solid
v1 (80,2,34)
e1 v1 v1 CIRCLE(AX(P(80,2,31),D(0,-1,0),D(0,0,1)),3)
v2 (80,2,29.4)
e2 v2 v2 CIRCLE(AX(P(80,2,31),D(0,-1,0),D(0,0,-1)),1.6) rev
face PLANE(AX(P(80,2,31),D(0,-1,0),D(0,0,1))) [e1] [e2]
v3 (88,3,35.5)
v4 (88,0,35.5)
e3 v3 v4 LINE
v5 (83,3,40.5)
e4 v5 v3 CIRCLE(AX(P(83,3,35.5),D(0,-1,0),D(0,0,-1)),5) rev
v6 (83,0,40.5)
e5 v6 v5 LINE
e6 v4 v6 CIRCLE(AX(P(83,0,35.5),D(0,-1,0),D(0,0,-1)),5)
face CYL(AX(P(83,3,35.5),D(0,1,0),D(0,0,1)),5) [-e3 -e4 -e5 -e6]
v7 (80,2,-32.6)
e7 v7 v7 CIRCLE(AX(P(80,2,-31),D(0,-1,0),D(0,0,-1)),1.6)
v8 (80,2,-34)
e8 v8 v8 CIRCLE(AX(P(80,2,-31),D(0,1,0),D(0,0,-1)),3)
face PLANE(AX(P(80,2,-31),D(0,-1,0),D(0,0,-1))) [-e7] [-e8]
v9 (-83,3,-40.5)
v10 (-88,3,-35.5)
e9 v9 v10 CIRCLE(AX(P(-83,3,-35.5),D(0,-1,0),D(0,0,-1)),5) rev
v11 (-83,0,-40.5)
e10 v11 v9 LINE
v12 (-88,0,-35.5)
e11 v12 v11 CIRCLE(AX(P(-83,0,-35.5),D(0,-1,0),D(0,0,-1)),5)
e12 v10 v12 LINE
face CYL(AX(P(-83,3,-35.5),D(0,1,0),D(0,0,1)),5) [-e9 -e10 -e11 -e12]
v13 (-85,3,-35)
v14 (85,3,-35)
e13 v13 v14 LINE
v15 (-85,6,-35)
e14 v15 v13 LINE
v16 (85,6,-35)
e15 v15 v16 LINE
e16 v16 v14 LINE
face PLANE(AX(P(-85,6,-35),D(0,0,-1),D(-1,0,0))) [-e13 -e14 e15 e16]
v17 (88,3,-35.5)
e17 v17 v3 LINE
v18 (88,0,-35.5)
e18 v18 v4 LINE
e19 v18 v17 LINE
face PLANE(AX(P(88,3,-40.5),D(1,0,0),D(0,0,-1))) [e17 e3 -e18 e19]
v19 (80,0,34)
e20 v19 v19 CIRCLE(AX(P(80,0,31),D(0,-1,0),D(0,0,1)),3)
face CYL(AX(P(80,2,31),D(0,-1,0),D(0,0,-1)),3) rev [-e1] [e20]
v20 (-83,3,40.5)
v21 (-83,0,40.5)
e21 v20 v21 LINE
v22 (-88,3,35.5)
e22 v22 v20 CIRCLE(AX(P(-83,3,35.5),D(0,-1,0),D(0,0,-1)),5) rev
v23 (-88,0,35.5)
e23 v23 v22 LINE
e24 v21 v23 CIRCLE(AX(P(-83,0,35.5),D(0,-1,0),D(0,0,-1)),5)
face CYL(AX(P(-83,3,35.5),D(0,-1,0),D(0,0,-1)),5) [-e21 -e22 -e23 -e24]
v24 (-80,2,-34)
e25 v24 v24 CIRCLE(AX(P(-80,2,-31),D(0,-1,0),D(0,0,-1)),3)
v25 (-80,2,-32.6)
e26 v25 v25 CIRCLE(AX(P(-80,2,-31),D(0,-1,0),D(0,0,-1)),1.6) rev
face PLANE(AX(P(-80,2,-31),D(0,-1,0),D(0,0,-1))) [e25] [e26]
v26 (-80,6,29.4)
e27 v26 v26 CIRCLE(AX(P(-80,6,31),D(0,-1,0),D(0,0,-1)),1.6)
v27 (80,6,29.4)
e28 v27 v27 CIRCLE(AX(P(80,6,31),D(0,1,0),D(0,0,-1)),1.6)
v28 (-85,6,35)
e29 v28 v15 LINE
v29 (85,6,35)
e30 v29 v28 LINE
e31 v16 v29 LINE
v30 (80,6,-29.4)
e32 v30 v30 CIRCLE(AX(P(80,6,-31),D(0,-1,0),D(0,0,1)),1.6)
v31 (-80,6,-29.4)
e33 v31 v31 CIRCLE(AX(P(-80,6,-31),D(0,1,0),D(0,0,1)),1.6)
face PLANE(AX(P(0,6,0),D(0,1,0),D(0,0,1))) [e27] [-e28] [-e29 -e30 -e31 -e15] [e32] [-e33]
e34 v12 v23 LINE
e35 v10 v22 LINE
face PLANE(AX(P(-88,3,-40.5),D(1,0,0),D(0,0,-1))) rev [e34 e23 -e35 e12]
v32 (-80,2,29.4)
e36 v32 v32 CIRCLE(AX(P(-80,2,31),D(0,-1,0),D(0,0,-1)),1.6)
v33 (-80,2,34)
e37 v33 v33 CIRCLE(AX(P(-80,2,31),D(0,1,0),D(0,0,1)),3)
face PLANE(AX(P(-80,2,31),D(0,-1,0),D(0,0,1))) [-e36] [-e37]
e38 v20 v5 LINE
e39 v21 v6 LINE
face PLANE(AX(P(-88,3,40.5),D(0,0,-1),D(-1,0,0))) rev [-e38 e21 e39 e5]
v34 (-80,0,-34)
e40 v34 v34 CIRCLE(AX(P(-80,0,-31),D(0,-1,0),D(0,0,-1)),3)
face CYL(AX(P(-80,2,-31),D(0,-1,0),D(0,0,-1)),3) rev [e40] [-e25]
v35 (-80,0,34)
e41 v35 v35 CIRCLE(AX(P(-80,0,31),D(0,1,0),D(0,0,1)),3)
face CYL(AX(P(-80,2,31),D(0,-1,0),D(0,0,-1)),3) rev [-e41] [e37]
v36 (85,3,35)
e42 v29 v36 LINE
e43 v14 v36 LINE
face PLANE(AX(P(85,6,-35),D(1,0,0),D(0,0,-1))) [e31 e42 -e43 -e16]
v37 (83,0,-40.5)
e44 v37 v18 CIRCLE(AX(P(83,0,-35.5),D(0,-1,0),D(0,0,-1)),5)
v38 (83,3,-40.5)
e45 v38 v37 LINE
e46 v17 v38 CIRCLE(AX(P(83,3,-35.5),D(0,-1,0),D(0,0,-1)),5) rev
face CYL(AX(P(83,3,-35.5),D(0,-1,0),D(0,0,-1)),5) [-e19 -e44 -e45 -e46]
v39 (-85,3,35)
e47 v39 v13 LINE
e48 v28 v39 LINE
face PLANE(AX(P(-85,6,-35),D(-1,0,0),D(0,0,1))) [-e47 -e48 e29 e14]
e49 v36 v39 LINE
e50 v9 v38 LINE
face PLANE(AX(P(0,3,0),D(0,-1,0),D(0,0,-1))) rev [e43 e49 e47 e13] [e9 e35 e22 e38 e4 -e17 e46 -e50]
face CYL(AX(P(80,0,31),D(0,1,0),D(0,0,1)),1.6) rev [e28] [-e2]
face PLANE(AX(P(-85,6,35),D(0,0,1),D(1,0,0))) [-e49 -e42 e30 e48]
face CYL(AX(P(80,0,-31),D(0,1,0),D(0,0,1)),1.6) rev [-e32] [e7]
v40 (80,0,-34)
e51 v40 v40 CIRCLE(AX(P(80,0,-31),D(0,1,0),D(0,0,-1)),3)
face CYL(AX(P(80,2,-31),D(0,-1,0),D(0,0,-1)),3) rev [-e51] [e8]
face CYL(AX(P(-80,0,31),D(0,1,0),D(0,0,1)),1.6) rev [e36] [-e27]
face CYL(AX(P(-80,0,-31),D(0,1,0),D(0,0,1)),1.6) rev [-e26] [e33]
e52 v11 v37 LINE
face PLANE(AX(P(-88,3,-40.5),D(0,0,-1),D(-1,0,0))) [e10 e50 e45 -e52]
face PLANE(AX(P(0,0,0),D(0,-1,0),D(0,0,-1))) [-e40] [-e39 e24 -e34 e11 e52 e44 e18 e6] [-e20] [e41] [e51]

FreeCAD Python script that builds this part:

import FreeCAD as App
import Part
import Sketcher

V = App.Vector


def edges_at(feature, points):
    """Names of the edges that pass closest to the given points."""
    edges = feature.Shape.Edges
    near = lambda p: min(range(len(edges)), key=lambda i: edges[i].distToShape(Part.Vertex(*p))[0])
    return sorted({f"Edge{near(p) + 1}" for p in points})


def add_polygon(sketch, points):
    """Adds a closed chain of lines whose ends are joined by coincident constraints."""
    first, n = sketch.GeometryCount, len(points)
    for a, b in zip(points, points[1:] + points[:1]):
        sketch.addGeometry(Part.LineSegment(App.Vector(*a, 0), App.Vector(*b, 0)), False)
    for i in range(n):
        sketch.addConstraint(Sketcher.Constraint("Coincident", first + i, 2, first + (i + 1) % n, 1))

doc = App.newDocument("Part")
params = doc.addObject("Spreadsheet::Sheet", "Params")
for row, (alias, value) in enumerate([
    ("sketch1_width", "176 mm"),
    ("sketch1_height", "81 mm"),
    ("pad1_length", "3 mm"),
    ("fillet_radius", "5 mm"),
    ("sketch2_width", "170 mm"),
    ("sketch2_height", "70 mm"),
    ("pad2_length", "6 mm"),
    ("sketch3_diameter", "3.2 mm"),
    ("sketch4_diameter", "6 mm"),
    ("pocket2_length", "2 mm"),
    ("sketch5_diameter", "3.2 mm"),
    ("sketch6_diameter", "6 mm"),
    ("pocket4_length", "2 mm"),
], start=1):
    params.set(f"A{row}", alias)
    params.set(f"B{row}", "=" + value)
    params.setAlias(f"B{row}", alias)

body = doc.addObject("PartDesign::Body", "Body")

sketch1 = body.newObject("Sketcher::SketchObject", "Sketch")
sketch1.AttachmentSupport = (doc.getObject("XZ_Plane"), [""])
sketch1.MapMode = "FlatFace"
add_polygon(sketch1, [(-88, -40), (-88, 40), (88, 40), (88, -40)])
sketch1.addConstraint([
    Sketcher.Constraint("Vertical", 0),
    Sketcher.Constraint("Horizontal", 1),
    Sketcher.Constraint("Vertical", 2),
    Sketcher.Constraint("Horizontal", 3),
    Sketcher.Constraint("Symmetric", 0, 2, 2, 2, -1, 1),
    Sketcher.Constraint("DistanceX", 1, 1, 1, 2, 176.0),
    Sketcher.Constraint("DistanceY", 0, 1, 0, 2, 81.0),
])
sketch1.setExpression("Constraints[9]", "Params.sketch1_width")
sketch1.setExpression("Constraints[10]", "Params.sketch1_height")
pad1 = body.newObject("PartDesign::Pad", "Pad")
pad1.Profile = sketch1
pad1.setExpression("Length", "Params.pad1_length")
pad1.Reversed = True
doc.recompute()

fillet = body.newObject("PartDesign::Fillet", "Fillet")
fillet.Base = (pad1, edges_at(pad1, [
    (-88, 1.5, -40.5),
    (-88, 1.5, 40.5),
    (88, 1.5, 40.5),
    (88, 1.5, -40.5),
]))
fillet.setExpression("Radius", "Params.fillet_radius")

sketch2 = body.newObject("Sketcher::SketchObject", "Sketch001")
sketch2.AttachmentSupport = (doc.getObject("XZ_Plane"), [""])
sketch2.MapMode = "FlatFace"
add_polygon(sketch2, [(-85, 35), (-85, -35), (85, -35), (85, 35)])
sketch2.addConstraint([
    Sketcher.Constraint("Vertical", 0),
    Sketcher.Constraint("Horizontal", 1),
    Sketcher.Constraint("Vertical", 2),
    Sketcher.Constraint("Horizontal", 3),
    Sketcher.Constraint("Symmetric", 0, 2, 2, 2, -1, 1),
    Sketcher.Constraint("DistanceX", 1, 1, 1, 2, 170.0),
    Sketcher.Constraint("DistanceY", 0, 2, 0, 1, 70.0),
])
sketch2.setExpression("Constraints[9]", "Params.sketch2_width")
sketch2.setExpression("Constraints[10]", "Params.sketch2_height")
pad2 = body.newObject("PartDesign::Pad", "Pad001")
pad2.Profile = sketch2
pad2.setExpression("Length", "Params.pad2_length")
pad2.Reversed = True

sketch3 = body.newObject("Sketcher::SketchObject", "Sketch002")
sketch3.AttachmentSupport = (doc.getObject("XZ_Plane"), [""])
sketch3.MapMode = "FlatFace"
sketch3.AttachmentOffset = App.Placement(V(0, 0, -6), App.Rotation())
sketch3.addGeometry(Part.Circle(V(-80, -31, 0), V(0, 0, 1), 1.6), False)
sketch3.addConstraint([
    Sketcher.Constraint("Diameter", 0, 3.2),
    Sketcher.Constraint("DistanceX", 0, 3, -1, 1, 80.0),
    Sketcher.Constraint("DistanceY", 0, 3, -1, 1, 31.0),
])
sketch3.setExpression("Constraints[0]", "Params.sketch3_diameter")
pocket1 = body.newObject("PartDesign::Pocket", "Pocket")
pocket1.Profile = sketch3
pocket1.Type = "ThroughAll"
pocket1.Reversed = True

sketch4 = body.newObject("Sketcher::SketchObject", "Sketch003")
sketch4.AttachmentSupport = (doc.getObject("XZ_Plane"), [""])
sketch4.MapMode = "FlatFace"
sketch4.addGeometry(Part.Circle(V(-80, -31, 0), V(0, 0, 1), 3), False)
sketch4.addConstraint([
    Sketcher.Constraint("Diameter", 0, 6.0),
    Sketcher.Constraint("DistanceX", 0, 3, -1, 1, 80.0),
    Sketcher.Constraint("DistanceY", 0, 3, -1, 1, 31.0),
])
sketch4.setExpression("Constraints[0]", "Params.sketch4_diameter")
pocket2 = body.newObject("PartDesign::Pocket", "Pocket001")
pocket2.Profile = sketch4
pocket2.setExpression("Length", "Params.pocket2_length")
doc.recompute()

mirrored = body.newObject("PartDesign::Mirrored", "Mirrored")
mirrored.Originals = [pocket1, pocket2]
mirrored.MirrorPlane = (doc.getObject("XY_Plane"), [""])
body.Tip = mirrored
doc.recompute()

mirrored2 = body.newObject("PartDesign::Mirrored", "Mirrored001")
mirrored2.Originals = [pocket1, pocket2]
mirrored2.MirrorPlane = (doc.getObject("YZ_Plane"), [""])
body.Tip = mirrored2

sketch5 = body.newObject("Sketcher::SketchObject", "Sketch004")
sketch5.AttachmentSupport = (doc.getObject("XZ_Plane"), [""])
sketch5.MapMode = "FlatFace"
sketch5.AttachmentOffset = App.Placement(V(0, 0, -6), App.Rotation())
sketch5.addGeometry(Part.Circle(V(80, 31, 0), V(0, 0, 1), 1.6), False)
sketch5.addConstraint([
    Sketcher.Constraint("Diameter", 0, 3.2),
    Sketcher.Constraint("DistanceX", -1, 1, 0, 3, 80.0),
    Sketcher.Constraint("DistanceY", -1, 1, 0, 3, 31.0),
])
sketch5.setExpression("Constraints[0]", "Params.sketch5_diameter")
pocket3 = body.newObject("PartDesign::Pocket", "Pocket002")
pocket3.Profile = sketch5
pocket3.Type = "ThroughAll"
pocket3.Reversed = True

sketch6 = body.newObject("Sketcher::SketchObject", "Sketch005")
sketch6.AttachmentSupport = (doc.getObject("XZ_Plane"), [""])
sketch6.MapMode = "FlatFace"
sketch6.addGeometry(Part.Circle(V(80, 31, 0), V(0, 0, 1), 3), False)
sketch6.addConstraint([
    Sketcher.Constraint("Diameter", 0, 6.0),
    Sketcher.Constraint("DistanceX", -1, 1, 0, 3, 80.0),
    Sketcher.Constraint("DistanceY", -1, 1, 0, 3, 31.0),
])
sketch6.setExpression("Constraints[0]", "Params.sketch6_diameter")
pocket4 = body.newObject("PartDesign::Pocket", "Pocket003")
pocket4.Profile = sketch6
pocket4.setExpression("Length", "Params.pocket4_length")

doc.recompute()
